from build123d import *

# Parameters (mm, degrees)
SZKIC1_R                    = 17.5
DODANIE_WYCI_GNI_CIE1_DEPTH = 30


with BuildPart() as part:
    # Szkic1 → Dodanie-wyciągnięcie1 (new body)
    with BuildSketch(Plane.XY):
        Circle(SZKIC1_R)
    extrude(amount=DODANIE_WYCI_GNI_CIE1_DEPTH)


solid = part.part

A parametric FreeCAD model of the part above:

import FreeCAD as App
import Part
import Sketcher
Q = App.Units.Quantity

doc = App.newDocument("Part")
params = doc.addObject("Spreadsheet::Sheet", "Params")
for row, (alias, value) in enumerate([
    ("sketch1_diameter", "35 mm"),
    ("pad1_length", "30 mm"),
], start=1):
    params.set(f"A{row}", alias)
    params.set(f"B{row}", "=" + value)
    params.setAlias(f"B{row}", alias)

body = doc.addObject("PartDesign::Body", "Body")

sketch1 = body.newObject("Sketcher::SketchObject", "Sketch")
sketch1.AttachmentSupport = (doc.getObject("XY_Plane"), [""])
sketch1.MapMode = "FlatFace"
sketch1.addGeometry(Part.Circle(App.Vector(0, 0, 0), App.Vector(0, 0, 1), 18), False)
sketch1.addConstraint(Sketcher.Constraint("Coincident", 0, 3, -1, 1))
sketch1.addConstraint(Sketcher.Constraint("Diameter", 0, Q("35 mm")))
sketch1.setExpression("Constraints[1]", "Params.sketch1_diameter")
pad1 = body.newObject("PartDesign::Pad", "Pad")
pad1.Profile = sketch1
pad1.setExpression("Length", "Params.pad1_length")

doc.recompute()
